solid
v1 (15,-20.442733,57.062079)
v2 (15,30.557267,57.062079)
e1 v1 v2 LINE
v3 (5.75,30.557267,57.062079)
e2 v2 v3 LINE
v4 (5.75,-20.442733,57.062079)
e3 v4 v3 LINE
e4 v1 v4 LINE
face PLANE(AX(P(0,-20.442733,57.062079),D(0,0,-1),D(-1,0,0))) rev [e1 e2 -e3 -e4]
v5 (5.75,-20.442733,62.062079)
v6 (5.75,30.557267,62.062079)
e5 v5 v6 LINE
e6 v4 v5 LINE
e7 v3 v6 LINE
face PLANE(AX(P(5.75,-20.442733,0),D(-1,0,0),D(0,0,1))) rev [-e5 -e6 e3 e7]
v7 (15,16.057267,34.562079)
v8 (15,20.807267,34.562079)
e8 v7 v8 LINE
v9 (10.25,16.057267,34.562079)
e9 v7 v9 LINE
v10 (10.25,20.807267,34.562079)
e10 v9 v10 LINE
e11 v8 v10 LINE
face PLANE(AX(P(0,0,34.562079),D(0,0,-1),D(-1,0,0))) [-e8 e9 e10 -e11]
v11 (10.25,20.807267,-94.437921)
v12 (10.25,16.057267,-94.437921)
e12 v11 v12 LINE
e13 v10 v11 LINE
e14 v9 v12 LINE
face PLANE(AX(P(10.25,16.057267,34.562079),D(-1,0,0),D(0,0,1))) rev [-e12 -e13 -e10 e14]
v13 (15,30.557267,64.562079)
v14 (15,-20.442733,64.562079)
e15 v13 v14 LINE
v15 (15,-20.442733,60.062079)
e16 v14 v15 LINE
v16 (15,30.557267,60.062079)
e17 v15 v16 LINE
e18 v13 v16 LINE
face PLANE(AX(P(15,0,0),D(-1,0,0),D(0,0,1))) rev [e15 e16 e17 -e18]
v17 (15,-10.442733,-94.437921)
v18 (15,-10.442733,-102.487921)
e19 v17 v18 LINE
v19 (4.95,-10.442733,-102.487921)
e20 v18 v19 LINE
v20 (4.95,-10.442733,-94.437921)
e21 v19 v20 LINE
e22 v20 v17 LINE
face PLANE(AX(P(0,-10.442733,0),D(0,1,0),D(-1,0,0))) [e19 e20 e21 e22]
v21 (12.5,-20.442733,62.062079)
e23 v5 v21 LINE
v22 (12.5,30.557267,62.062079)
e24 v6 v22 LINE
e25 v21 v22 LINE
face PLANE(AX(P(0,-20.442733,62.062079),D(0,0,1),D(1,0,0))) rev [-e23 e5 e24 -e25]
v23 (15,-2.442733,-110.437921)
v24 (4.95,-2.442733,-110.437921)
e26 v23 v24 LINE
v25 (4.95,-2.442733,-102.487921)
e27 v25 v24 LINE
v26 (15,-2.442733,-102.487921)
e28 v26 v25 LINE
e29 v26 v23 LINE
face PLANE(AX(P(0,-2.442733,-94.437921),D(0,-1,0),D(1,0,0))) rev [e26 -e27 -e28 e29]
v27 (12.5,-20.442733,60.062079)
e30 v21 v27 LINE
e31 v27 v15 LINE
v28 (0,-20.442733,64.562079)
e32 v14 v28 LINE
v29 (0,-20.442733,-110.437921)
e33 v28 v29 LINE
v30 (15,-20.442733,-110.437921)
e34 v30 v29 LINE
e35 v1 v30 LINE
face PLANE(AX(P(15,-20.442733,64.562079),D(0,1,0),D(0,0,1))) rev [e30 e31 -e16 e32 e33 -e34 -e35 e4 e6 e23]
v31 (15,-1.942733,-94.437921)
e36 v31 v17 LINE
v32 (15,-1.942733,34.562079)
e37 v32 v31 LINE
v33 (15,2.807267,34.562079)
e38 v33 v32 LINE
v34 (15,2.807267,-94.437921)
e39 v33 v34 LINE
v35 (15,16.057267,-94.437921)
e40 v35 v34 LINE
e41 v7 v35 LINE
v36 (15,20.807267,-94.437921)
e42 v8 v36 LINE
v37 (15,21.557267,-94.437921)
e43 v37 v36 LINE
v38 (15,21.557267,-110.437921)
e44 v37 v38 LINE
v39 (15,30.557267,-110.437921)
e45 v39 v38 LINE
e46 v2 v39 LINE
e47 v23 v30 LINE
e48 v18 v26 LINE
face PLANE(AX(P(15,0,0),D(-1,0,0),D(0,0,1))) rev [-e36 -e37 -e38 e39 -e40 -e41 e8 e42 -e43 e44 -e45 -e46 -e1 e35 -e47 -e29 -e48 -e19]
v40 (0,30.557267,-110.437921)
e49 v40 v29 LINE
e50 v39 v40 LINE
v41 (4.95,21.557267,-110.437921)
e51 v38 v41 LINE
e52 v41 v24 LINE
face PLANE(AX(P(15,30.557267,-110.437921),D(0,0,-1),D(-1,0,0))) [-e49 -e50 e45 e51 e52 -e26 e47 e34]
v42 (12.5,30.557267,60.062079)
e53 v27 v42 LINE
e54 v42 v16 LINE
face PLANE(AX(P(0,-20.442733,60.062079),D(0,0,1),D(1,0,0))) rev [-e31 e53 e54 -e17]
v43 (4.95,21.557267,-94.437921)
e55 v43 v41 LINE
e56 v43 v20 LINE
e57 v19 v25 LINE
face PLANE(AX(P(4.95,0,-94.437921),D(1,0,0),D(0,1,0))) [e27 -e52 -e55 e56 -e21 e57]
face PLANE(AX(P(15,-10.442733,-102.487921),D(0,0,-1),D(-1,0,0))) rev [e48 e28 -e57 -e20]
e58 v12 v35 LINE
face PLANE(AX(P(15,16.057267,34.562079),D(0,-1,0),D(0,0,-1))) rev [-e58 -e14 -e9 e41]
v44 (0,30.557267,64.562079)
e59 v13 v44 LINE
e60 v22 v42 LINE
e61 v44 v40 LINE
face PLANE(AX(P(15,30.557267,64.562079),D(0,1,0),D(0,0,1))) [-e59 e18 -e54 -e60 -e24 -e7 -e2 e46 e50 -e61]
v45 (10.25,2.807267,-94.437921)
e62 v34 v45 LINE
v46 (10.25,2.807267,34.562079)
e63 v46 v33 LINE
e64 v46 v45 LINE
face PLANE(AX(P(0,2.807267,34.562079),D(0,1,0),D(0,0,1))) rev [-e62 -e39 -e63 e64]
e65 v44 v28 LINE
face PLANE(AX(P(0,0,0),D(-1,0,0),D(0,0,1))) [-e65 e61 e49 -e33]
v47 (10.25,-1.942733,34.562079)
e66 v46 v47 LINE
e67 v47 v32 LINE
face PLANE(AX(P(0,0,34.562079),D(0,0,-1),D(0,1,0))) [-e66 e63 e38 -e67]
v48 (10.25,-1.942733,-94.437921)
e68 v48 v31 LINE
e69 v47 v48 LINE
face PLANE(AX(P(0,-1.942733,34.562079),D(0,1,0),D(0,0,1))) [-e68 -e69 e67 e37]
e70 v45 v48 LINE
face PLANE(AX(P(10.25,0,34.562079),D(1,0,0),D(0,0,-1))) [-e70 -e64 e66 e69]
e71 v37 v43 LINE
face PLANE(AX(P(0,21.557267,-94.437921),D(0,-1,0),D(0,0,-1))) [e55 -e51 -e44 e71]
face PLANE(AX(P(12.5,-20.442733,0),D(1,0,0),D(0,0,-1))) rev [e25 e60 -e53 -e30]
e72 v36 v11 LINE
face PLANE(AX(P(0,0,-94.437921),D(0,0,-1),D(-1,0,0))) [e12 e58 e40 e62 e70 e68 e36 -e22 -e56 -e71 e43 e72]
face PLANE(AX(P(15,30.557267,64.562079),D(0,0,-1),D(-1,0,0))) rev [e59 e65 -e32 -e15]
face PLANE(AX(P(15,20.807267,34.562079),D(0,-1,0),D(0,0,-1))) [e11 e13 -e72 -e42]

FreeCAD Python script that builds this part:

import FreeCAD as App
import Part
import Sketcher

V = App.Vector
Q = App.Units.Quantity


def add_polygon(sketch, points):
    """Adds a closed chain of lines whose ends are joined by coincident constraints."""
    first, n = sketch.GeometryCount, len(points)
    for a, b in zip(points, points[1:] + points[:1]):
        sketch.addGeometry(Part.LineSegment(App.Vector(*a, 0), App.Vector(*b, 0)), False)
    for i in range(n):
        sketch.addConstraint(Sketcher.Constraint("Coincident", first + i, 2, first + (i + 1) % n, 1))

doc = App.newDocument("Part")
body = doc.addObject("PartDesign::Body", "Body")

# Sketch on YZ plane
sketch1 = body.newObject("Sketcher::SketchObject", "Sketch")
sketch1.AttachmentSupport = (doc.getObject("YZ_Plane"), [""])
sketch1.MapMode = "FlatFace"
add_polygon(sketch1, [(31, 65), (-20, 65), (-20, -110), (31, -110)])  # lines 0-3
sketch1.addConstraint(Sketcher.Constraint("Horizontal", 0))
sketch1.addConstraint(Sketcher.Constraint("Vertical", 1))
sketch1.addConstraint(Sketcher.Constraint("Horizontal", 2))
sketch1.addConstraint(Sketcher.Constraint("Vertical", 3))
sketch1.addConstraint(Sketcher.Constraint("DistanceX", 0, 2, 0, 1, Q("51 mm")))
sketch1.addConstraint(Sketcher.Constraint("DistanceY", 1, 2, 1, 1, Q("175 mm")))
sketch1.addConstraint(Sketcher.Constraint("DistanceY", -1, 1, 0, 2, Q("64.562079 mm")))
sketch1.addConstraint(Sketcher.Constraint("DistanceX", 0, 2, -1, 1, Q("20.442733 mm")))
pad1 = body.newObject("PartDesign::Pad", "Pad")
pad1.Profile = sketch1
pad1.Length = 15

# Sketch on XZ plane
sketch2 = body.newObject("Sketcher::SketchObject", "Sketch001")
sketch2.AttachmentSupport = (doc.getObject("XZ_Plane"), [""])
sketch2.MapMode = "FlatFace"
sketch2.AttachmentOffset = App.Placement(V(0, 0, -30.557267), App.Rotation())
add_polygon(sketch2, [(12.5, 60.1), (15, 60.1), (15, 57.1), (5.8, 57.1), (5.8, 62.1), (12.5, 62.1)])  # lines 0-5
sketch2.addConstraint(Sketcher.Constraint("Horizontal", 0))
sketch2.addConstraint(Sketcher.Constraint("Vertical", 1))
sketch2.addConstraint(Sketcher.Constraint("Horizontal", 2))
sketch2.addConstraint(Sketcher.Constraint("Vertical", 3))
sketch2.addConstraint(Sketcher.Constraint("Horizontal", 4))
sketch2.addConstraint(Sketcher.Constraint("Vertical", 5))
sketch2.addConstraint(Sketcher.Constraint("DistanceY", 1, 2, 1, 1, Q("3 mm")))
sketch2.addConstraint(Sketcher.Constraint("DistanceY", 3, 1, 3, 2, Q("5 mm")))
sketch2.addConstraint(Sketcher.Constraint("DistanceX", 0, 1, 0, 2, Q("2.5 mm")))
sketch2.addConstraint(Sketcher.Constraint("DistanceX", -1, 1, 0, 2, Q("15 mm")))
sketch2.addConstraint(Sketcher.Constraint("DistanceX", 2, 2, 2, 1, Q("9.25 mm")))
sketch2.addConstraint(Sketcher.Constraint("DistanceY", -1, 1, 0, 2, Q("60.062079 mm")))
pocket1 = body.newObject("PartDesign::Pocket", "Pocket")
pocket1.Profile = sketch2
pocket1.Type = "ThroughAll"
pocket1.Reversed = True

# Sketch on XY plane
sketch3 = body.newObject("Sketcher::SketchObject", "Sketch002")
sketch3.AttachmentSupport = (doc.getObject("XY_Plane"), [""])
sketch3.MapMode = "FlatFace"
sketch3.AttachmentOffset = App.Placement(V(0, 0, -110.437921), App.Rotation())
add_polygon(sketch3, [(15, 2.8), (15, -1.9), (10.2, -1.9), (10.2, 2.8)])  # lines 0-3
add_polygon(sketch3, [(15, 20.8), (15, 16.1), (10.2, 16.1), (10.2, 20.8)])  # lines 4-7
sketch3.addConstraint(Sketcher.Constraint("Vertical", 0))
sketch3.addConstraint(Sketcher.Constraint("Horizontal", 1))
sketch3.addConstraint(Sketcher.Constraint("Vertical", 2))
sketch3.addConstraint(Sketcher.Constraint("Horizontal", 3))
sketch3.addConstraint(Sketcher.Constraint("Vertical", 4))
sketch3.addConstraint(Sketcher.Constraint("Horizontal", 5))
sketch3.addConstraint(Sketcher.Constraint("Vertical", 6))
sketch3.addConstraint(Sketcher.Constraint("Horizontal", 7))
sketch3.addConstraint(Sketcher.Constraint("Vertical", 3, 2, 4, 2))
sketch3.addConstraint(Sketcher.Constraint("Vertical", 2, 2, 5, 2))
sketch3.addConstraint(Sketcher.Constraint("Equal", 7, 0))
sketch3.addConstraint(Sketcher.Constraint("Equal", 2, 4))
sketch3.addConstraint(Sketcher.Constraint("DistanceX", -1, 1, 0, 2, Q("15 mm")))
sketch3.addConstraint(Sketcher.Constraint("DistanceY", 0, 2, 4, 2, Q("18 mm")))
sketch3.addConstraint(Sketcher.Constraint("DistanceX", 1, 2, 1, 1, Q("4.75 mm")))
sketch3.addConstraint(Sketcher.Constraint("DistanceY", 0, 2, -1, 1, Q("1.942733 mm")))
pocket2 = body.newObject("PartDesign::Pocket", "Pocket001")
pocket2.Profile = sketch3
pocket2.Length = 145
pocket2.Reversed = True

# Sketch on XY plane
sketch4 = body.newObject("Sketcher::SketchObject", "Sketch003")
sketch4.AttachmentSupport = (doc.getObject("XY_Plane"), [""])
sketch4.MapMode = "FlatFace"
sketch4.AttachmentOffset = App.Placement(V(0, 0, -110.437921), App.Rotation())
add_polygon(sketch4, [(15, 22), (15, -2), (5, -2), (5, 22)])  # lines 0-3
sketch4.addConstraint(Sketcher.Constraint("Vertical", 0))
sketch4.addConstraint(Sketcher.Constraint("Horizontal", 1))
sketch4.addConstraint(Sketcher.Constraint("Vertical", 2))
sketch4.addConstraint(Sketcher.Constraint("Horizontal", 3))
sketch4.addConstraint(Sketcher.Constraint("DistanceY", 0, 2, 0, 1, Q("24 mm")))
sketch4.addConstraint(Sketcher.Constraint("DistanceX", -1, 1, 0, 2, Q("15 mm")))
sketch4.addConstraint(Sketcher.Constraint("DistanceX", 1, 2, 1, 1, Q("10.05 mm")))
sketch4.addConstraint(Sketcher.Constraint("DistanceY", 0, 2, -1, 1, Q("2.442733 mm")))
pocket3 = body.newObject("PartDesign::Pocket", "Pocket002")
pocket3.Profile = sketch4
pocket3.Length = 16
pocket3.Reversed = True

# Sketch on XZ plane
sketch5 = body.newObject("Sketcher::SketchObject", "Sketch004")
sketch5.AttachmentSupport = (doc.getObject("XZ_Plane"), [""])
sketch5.MapMode = "FlatFace"
sketch5.AttachmentOffset = App.Placement(V(0, 0, 2.442733), App.Rotation())
add_polygon(sketch5, [(5, -102), (5, -94), (15, -94), (15, -102)])  # lines 0-3
sketch5.addConstraint(Sketcher.Constraint("Vertical", 0))
sketch5.addConstraint(Sketcher.Constraint("Horizontal", 1))
sketch5.addConstraint(Sketcher.Constraint("Vertical", 2))
sketch5.addConstraint(Sketcher.Constraint("Horizontal", 3))
sketch5.addConstraint(Sketcher.Constraint("DistanceX", -1, 1, 1, 2, Q("15 mm")))
sketch5.addConstraint(Sketcher.Constraint("DistanceX", 1, 1, 1, 2, Q("10.05 mm")))
sketch5.addConstraint(Sketcher.Constraint("DistanceY", 0, 1, 0, 2, Q("8.05 mm")))
sketch5.addConstraint(Sketcher.Constraint("DistanceY", 0, 2, -1, 1, Q("94.437921 mm")))
pocket4 = body.newObject("PartDesign::Pocket", "Pocket003")
pocket4.Profile = sketch5
pocket4.Length = 8
pocket4.Reversed = True

doc.recompute()
